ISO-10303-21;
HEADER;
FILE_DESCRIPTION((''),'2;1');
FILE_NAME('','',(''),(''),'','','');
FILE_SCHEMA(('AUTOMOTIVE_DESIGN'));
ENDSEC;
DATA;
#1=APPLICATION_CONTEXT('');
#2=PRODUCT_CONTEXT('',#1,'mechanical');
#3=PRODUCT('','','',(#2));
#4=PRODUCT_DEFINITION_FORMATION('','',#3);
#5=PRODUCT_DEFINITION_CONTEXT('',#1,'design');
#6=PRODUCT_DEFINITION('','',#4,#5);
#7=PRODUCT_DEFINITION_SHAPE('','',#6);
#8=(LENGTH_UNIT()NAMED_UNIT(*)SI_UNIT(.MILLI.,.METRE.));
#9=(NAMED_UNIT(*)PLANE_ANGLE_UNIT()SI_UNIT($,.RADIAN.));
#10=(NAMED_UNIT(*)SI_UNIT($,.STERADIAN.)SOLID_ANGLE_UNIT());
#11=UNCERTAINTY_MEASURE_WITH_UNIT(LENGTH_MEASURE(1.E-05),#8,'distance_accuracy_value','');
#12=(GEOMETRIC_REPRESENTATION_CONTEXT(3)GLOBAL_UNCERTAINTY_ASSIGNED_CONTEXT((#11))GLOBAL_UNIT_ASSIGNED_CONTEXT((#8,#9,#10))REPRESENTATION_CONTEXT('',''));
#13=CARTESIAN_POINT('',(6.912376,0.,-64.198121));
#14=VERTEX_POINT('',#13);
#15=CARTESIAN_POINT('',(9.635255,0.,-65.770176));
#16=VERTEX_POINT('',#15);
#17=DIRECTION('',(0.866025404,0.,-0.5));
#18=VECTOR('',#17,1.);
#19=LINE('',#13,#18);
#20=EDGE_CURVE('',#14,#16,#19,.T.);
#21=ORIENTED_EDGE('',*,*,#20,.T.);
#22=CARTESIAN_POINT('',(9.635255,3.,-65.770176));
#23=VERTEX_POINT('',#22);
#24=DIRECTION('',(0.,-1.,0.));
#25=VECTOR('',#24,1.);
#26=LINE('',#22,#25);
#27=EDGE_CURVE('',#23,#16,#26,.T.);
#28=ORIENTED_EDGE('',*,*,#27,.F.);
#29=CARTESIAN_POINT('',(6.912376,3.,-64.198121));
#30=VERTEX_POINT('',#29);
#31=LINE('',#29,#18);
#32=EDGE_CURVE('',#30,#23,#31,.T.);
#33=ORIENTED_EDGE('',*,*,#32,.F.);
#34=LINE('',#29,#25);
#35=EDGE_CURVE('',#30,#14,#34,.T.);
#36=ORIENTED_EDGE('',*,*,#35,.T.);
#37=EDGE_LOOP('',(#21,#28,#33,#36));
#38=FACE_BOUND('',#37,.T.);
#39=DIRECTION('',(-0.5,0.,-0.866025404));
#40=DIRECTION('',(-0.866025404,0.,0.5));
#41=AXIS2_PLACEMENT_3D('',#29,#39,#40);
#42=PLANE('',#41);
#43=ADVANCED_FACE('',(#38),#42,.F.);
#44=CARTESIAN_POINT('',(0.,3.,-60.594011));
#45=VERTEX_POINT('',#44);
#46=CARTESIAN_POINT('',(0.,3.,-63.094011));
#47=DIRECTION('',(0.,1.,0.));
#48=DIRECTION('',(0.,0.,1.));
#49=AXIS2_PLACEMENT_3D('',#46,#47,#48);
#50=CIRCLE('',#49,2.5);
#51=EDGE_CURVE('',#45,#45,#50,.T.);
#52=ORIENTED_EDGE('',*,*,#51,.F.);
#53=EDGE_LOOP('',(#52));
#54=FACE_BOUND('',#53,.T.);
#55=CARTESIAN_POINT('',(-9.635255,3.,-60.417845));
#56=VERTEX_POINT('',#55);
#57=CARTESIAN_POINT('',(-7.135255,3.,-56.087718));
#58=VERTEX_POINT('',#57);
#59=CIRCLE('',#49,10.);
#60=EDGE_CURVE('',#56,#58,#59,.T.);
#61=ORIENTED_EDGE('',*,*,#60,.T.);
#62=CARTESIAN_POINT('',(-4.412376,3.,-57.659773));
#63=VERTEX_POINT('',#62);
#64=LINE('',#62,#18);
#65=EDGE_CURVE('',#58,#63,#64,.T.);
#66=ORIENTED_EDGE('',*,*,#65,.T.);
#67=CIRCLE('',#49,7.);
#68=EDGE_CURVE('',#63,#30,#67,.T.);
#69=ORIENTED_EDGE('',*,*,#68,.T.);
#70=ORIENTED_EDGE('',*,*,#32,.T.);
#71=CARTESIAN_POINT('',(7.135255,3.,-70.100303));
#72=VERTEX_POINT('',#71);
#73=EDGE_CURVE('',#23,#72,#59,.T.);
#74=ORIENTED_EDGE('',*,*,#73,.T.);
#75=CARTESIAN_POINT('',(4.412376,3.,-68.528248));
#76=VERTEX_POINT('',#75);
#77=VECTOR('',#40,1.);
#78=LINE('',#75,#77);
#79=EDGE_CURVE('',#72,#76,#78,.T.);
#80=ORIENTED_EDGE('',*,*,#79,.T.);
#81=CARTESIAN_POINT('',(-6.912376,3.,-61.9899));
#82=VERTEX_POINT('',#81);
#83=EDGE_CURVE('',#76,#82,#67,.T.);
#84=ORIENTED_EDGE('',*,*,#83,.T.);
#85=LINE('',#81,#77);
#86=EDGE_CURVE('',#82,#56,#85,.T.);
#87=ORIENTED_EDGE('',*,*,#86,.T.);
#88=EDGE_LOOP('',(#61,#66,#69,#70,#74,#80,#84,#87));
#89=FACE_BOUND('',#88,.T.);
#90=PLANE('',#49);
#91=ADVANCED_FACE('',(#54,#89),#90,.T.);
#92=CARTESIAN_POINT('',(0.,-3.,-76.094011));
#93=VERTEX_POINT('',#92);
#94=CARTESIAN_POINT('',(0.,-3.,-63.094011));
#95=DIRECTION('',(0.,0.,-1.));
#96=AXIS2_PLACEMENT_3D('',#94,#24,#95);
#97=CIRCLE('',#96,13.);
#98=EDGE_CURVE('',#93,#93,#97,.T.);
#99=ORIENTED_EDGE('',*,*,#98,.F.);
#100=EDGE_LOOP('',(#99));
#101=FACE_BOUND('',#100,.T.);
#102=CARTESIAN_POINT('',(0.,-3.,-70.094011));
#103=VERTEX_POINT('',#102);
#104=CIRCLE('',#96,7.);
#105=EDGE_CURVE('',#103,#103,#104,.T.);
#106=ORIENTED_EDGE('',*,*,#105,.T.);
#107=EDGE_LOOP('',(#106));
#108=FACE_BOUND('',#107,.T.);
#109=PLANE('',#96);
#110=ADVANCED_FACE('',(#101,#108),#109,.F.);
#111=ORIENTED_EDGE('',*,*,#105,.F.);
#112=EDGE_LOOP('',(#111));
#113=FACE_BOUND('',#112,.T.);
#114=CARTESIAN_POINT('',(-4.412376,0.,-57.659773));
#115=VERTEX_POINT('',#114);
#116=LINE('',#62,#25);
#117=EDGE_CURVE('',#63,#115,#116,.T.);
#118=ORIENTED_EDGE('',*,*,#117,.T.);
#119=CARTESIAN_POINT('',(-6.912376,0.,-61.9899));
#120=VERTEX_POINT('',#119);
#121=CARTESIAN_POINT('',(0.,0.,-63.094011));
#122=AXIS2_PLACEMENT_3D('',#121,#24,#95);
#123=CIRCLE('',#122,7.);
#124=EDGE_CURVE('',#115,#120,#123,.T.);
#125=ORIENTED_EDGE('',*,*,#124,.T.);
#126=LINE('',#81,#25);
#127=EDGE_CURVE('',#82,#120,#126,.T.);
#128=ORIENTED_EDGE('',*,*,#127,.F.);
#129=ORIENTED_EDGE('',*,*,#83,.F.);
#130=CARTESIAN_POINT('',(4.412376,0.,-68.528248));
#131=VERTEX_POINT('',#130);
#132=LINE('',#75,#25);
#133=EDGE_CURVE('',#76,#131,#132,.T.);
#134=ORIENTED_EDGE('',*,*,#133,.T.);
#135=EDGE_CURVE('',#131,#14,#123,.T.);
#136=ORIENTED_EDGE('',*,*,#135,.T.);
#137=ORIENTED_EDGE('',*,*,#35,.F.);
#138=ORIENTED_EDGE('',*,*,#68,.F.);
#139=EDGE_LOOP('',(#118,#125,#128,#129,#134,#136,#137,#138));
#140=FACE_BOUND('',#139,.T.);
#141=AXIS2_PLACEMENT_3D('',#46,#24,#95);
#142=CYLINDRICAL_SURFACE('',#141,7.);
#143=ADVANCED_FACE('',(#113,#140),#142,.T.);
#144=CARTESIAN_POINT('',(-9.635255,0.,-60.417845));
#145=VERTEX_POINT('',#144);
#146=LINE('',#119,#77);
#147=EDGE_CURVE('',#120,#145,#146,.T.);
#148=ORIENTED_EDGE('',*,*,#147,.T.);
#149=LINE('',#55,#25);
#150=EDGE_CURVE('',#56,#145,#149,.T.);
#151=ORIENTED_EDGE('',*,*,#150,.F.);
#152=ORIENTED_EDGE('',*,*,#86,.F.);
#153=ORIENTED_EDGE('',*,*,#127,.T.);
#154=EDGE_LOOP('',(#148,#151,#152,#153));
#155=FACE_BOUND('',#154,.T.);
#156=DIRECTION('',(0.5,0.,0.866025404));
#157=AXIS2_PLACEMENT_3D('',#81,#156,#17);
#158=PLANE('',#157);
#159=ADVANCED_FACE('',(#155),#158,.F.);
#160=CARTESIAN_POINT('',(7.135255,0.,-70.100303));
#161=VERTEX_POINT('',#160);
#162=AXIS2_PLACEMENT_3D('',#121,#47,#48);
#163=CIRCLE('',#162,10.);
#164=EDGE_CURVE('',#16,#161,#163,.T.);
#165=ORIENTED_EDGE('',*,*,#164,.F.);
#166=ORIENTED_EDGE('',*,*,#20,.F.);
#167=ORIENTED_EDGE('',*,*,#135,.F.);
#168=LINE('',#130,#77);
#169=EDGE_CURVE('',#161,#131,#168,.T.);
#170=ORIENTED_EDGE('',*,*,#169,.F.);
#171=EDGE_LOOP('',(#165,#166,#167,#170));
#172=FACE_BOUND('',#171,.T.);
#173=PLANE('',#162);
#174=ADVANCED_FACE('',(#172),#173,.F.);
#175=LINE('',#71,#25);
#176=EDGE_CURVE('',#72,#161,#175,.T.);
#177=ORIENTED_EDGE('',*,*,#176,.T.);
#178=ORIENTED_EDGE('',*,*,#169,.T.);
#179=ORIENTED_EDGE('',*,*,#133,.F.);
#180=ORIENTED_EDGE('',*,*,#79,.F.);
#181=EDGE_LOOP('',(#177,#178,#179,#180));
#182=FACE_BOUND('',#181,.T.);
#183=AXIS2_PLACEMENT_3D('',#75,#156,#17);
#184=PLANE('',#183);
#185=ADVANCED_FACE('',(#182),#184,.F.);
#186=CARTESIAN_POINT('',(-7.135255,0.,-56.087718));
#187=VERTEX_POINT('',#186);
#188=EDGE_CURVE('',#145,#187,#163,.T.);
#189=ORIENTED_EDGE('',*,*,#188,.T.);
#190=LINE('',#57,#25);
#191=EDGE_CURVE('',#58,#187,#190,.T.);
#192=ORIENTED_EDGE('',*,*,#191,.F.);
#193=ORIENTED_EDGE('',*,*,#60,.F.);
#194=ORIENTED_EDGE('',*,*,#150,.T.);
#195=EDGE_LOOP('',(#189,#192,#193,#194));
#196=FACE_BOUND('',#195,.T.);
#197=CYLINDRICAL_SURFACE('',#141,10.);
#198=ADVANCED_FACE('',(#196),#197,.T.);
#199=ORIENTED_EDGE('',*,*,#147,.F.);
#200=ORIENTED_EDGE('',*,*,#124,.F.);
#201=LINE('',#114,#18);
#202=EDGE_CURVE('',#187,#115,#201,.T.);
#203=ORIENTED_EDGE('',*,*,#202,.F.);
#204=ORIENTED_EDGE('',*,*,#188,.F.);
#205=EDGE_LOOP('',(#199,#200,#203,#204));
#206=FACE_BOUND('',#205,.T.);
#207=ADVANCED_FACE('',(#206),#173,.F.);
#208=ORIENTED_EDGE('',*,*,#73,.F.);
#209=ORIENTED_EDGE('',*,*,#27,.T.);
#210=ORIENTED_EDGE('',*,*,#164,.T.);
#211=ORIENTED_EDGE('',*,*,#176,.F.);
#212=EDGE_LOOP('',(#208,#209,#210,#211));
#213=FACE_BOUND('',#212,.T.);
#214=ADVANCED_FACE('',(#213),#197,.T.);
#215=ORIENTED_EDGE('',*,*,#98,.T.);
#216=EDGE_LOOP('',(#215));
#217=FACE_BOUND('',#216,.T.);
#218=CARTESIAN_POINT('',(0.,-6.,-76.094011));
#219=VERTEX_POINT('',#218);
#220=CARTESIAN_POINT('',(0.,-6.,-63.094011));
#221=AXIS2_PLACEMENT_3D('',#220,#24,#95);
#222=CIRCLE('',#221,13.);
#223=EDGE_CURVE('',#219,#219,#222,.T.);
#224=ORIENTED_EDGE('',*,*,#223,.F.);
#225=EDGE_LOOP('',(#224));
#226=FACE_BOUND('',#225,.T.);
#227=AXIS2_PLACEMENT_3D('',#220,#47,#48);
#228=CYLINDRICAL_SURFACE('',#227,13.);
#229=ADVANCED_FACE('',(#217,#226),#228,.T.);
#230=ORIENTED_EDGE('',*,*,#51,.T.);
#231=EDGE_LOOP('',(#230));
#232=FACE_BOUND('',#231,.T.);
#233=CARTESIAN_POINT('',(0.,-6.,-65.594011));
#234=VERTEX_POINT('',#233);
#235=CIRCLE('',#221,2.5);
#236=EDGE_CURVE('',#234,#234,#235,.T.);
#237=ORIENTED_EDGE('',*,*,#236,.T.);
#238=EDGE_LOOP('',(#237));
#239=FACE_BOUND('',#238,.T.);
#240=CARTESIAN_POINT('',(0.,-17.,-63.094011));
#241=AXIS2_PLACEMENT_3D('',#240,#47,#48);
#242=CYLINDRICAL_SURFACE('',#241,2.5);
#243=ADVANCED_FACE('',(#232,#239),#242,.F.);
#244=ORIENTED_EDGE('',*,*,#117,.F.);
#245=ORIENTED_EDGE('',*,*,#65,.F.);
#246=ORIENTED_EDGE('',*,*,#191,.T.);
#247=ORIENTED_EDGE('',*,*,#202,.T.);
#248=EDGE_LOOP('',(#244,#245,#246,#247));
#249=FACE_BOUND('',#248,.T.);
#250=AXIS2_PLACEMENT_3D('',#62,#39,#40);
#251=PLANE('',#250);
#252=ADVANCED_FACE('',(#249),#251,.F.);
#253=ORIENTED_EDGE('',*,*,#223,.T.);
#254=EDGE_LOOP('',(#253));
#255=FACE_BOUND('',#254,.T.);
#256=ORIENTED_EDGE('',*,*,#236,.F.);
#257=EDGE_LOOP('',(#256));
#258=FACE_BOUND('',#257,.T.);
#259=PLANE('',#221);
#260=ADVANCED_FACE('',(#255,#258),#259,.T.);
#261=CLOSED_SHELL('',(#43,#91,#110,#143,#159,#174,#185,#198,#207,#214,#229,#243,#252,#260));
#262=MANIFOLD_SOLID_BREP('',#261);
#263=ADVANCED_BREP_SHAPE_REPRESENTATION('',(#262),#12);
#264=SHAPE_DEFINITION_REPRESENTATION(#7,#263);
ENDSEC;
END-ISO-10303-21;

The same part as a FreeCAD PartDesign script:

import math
import FreeCAD as App
import Part
import Sketcher

V = App.Vector
Q = App.Units.Quantity

doc = App.newDocument("Part")
body = doc.addObject("PartDesign::Body", "Body")

# Sketch on XZ plane
sketch1 = body.newObject("Sketcher::SketchObject", "Sketch")
sketch1.AttachmentSupport = (doc.getObject("XZ_Plane"), [""])
sketch1.MapMode = "FlatFace"
sketch1.addGeometry([
    Part.LineSegment(V(-7.1, -56.1, 0), V(-4.4, -57.7, 0)),  # 0
    Part.ArcOfCircle(Part.Circle(V(0, -63.1, 0), V(0, 0, 1), 7), math.radians(-9), math.radians(129)),  # 1
    Part.LineSegment(V(6.9, -64.2, 0), V(9.6, -65.8, 0)),  # 2
    Part.ArcOfCircle(Part.Circle(V(0, -63.1, 0), V(0, 0, 1), 10), math.radians(-44), math.radians(-16)),  # 3
    Part.LineSegment(V(7.1, -70.1, 0), V(4.4, -68.5, 0)),  # 4
    Part.ArcOfCircle(Part.Circle(V(0, -63.1, 0), V(0, 0, 1), 7), math.radians(171), math.radians(309)),  # 5
    Part.LineSegment(V(-6.9, -62, 0), V(-9.6, -60.4, 0)),  # 6
    Part.ArcOfCircle(Part.Circle(V(0, -63.1, 0), V(0, 0, 1), 10), math.radians(136), math.radians(164)),  # 7
], False)
sketch1.addConstraint([
    Sketcher.Constraint("Coincident", 0, 2, 1, 2),
    Sketcher.Constraint("Coincident", 1, 1, 2, 1),
    Sketcher.Constraint("Coincident", 2, 2, 3, 2),
    Sketcher.Constraint("Coincident", 3, 1, 4, 1),
    Sketcher.Constraint("Coincident", 4, 2, 5, 2),
    Sketcher.Constraint("Coincident", 5, 1, 6, 1),
    Sketcher.Constraint("Coincident", 6, 2, 7, 2),
    Sketcher.Constraint("Coincident", 7, 1, 0, 1),
    Sketcher.Constraint("Coincident", 3, 3, 1, 3),
    Sketcher.Constraint("Coincident", 5, 3, 1, 3),
    Sketcher.Constraint("Coincident", 7, 3, 1, 3),
    Sketcher.Constraint("Equal", 1, 5),
    Sketcher.Constraint("Equal", 3, 7),
    Sketcher.Constraint("PointOnObject", 1, 3, -2),
    Sketcher.Constraint("Parallel", 0, 2),
    Sketcher.Constraint("Parallel", 2, 4),
    Sketcher.Constraint("Parallel", 4, 6),
    Sketcher.Constraint("Equal", 0, 2),
    Sketcher.Constraint("Equal", 2, 4),
    Sketcher.Constraint("Equal", 4, 6),
    Sketcher.Constraint("Radius", 1, Q("7 mm")),
    Sketcher.Constraint("Radius", 3, Q("10 mm")),
    Sketcher.Constraint("Angle", 0, Q("-30 deg")),
    Sketcher.Constraint("DistanceX", 3, 1, 2, 2, Q("2.5 mm")),
    Sketcher.Constraint("DistanceY", 5, 1, -1, 1, Q("61.9899 mm")),
])
pad1 = body.newObject("PartDesign::Pad", "Pad")
pad1.Profile = sketch1
pad1.Length = 3
pad1.Reversed = True

# Sketch on XZ plane
sketch2 = body.newObject("Sketcher::SketchObject", "Sketch001")
sketch2.AttachmentSupport = (doc.getObject("XZ_Plane"), [""])
sketch2.MapMode = "FlatFace"
sketch2.AttachmentOffset = App.Placement(V(0, 0, 3), App.Rotation())
sketch2.addGeometry(Part.Circle(V(0, -63, 0), V(0, 0, 1), 7), False)
sketch2.addConstraint([
    Sketcher.Constraint("PointOnObject", 0, 3, -2),
    Sketcher.Constraint("Diameter", 0, Q("14 mm")),
    Sketcher.Constraint("DistanceY", 0, 3, -1, 1, Q("63.094011 mm")),
])
pad2 = body.newObject("PartDesign::Pad", "Pad001")
pad2.Profile = sketch2
pad2.Length = 3
pad2.Reversed = True

# Sketch on XZ plane
sketch3 = body.newObject("Sketcher::SketchObject", "Sketch002")
sketch3.AttachmentSupport = (doc.getObject("XZ_Plane"), [""])
sketch3.MapMode = "FlatFace"
sketch3.AttachmentOffset = App.Placement(V(0, 0, 3), App.Rotation())
sketch3.addGeometry(Part.Circle(V(0, -63, 0), V(0, 0, 1), 13), False)
sketch3.addConstraint([
    Sketcher.Constraint("PointOnObject", 0, 3, -2),
    Sketcher.Constraint("Diameter", 0, Q("26 mm")),
    Sketcher.Constraint("DistanceY", 0, 3, -1, 1, Q("63.094011 mm")),
])
pad3 = body.newObject("PartDesign::Pad", "Pad002")
pad3.Profile = sketch3
pad3.Length = 3

# Sketch on XZ plane
sketch4 = body.newObject("Sketcher::SketchObject", "Sketch003")
sketch4.AttachmentSupport = (doc.getObject("XZ_Plane"), [""])
sketch4.MapMode = "FlatFace"
sketch4.AttachmentOffset = App.Placement(V(0, 0, -3), App.Rotation())
sketch4.addGeometry(Part.Circle(V(0, -63.1, 0), V(0, 0, 1), 2.5), False)
sketch4.addConstraint([
    Sketcher.Constraint("PointOnObject", 0, 3, -2),
    Sketcher.Constraint("Diameter", 0, Q("5 mm")),
    Sketcher.Constraint("DistanceY", 0, 3, -1, 1, Q("63.094011 mm")),
])
pocket1 = body.newObject("PartDesign::Pocket", "Pocket")
pocket1.Profile = sketch4
pocket1.Length = 20
pocket1.Reversed = True

doc.recompute()
